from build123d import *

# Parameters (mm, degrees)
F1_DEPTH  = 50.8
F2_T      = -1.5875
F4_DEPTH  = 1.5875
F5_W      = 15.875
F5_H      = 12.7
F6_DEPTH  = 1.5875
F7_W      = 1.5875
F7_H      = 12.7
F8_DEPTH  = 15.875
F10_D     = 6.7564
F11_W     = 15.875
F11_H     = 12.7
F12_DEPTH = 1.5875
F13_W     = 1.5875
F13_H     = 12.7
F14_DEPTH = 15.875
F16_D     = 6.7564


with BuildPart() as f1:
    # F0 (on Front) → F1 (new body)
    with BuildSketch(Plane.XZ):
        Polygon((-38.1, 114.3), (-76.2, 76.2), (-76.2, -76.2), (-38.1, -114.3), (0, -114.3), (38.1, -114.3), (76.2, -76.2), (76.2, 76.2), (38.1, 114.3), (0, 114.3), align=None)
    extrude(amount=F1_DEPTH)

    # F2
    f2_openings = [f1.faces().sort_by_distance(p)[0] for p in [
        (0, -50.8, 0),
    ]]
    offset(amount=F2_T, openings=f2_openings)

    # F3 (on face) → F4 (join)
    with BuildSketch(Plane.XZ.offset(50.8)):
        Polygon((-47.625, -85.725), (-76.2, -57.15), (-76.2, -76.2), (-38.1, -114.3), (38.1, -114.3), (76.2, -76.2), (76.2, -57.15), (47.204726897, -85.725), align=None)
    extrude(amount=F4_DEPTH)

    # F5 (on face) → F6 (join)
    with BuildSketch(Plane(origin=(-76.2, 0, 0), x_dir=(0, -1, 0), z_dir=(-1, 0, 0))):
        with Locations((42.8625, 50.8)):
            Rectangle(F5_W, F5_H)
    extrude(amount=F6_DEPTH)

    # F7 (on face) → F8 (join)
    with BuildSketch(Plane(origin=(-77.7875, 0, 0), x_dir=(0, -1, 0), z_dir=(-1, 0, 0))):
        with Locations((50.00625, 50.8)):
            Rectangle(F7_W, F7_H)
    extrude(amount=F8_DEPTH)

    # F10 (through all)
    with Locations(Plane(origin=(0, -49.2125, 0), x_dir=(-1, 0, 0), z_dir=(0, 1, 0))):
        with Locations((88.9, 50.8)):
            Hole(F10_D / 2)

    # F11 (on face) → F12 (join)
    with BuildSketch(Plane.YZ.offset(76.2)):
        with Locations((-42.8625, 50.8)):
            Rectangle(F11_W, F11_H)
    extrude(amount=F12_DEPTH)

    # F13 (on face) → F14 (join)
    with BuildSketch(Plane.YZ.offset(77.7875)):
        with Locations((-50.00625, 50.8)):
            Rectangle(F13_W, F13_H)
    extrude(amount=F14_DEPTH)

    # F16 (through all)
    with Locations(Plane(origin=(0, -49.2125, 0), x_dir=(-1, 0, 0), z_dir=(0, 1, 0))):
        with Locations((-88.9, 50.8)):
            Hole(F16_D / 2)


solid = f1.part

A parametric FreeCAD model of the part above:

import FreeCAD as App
import Part
import Sketcher
from FreeCAD import Vector
Q = App.Units.Quantity


def faces_at(feature, points):
    """Names of the faces that lie closest to the given points."""
    faces = feature.Shape.Faces
    near = lambda p: min(range(len(faces)), key=lambda i: faces[i].distToShape(Part.Vertex(*p))[0])
    return sorted({f"Face{near(p) + 1}" for p in points})


def add_polygon(sketch, points):
    """Adds a closed chain of lines whose ends are joined by coincident constraints."""
    first, n = sketch.GeometryCount, len(points)
    for a, b in zip(points, points[1:] + points[:1]):
        sketch.addGeometry(Part.LineSegment(App.Vector(*a, 0), App.Vector(*b, 0)), False)
    for i in range(n):
        sketch.addConstraint(Sketcher.Constraint("Coincident", first + i, 2, first + (i + 1) % n, 1))

doc = App.newDocument("Part")
params = doc.addObject("Spreadsheet::Sheet", "Params")
for row, (alias, value) in enumerate([
    ("sketch1_width", "3 in"),
    ("sketch1_height", "6 in"),
    ("pad1_length", "2 in"),
    ("thickness_wall", "0.0625 in"),
    ("sketch2_width", "3 in"),
    ("sketch2_height", "0.75 in"),
    ("pad2_length", "0.0625 in"),
    ("sketch3_height", "0.5 in"),
    ("sketch3_width", "0.625 in"),
    ("pad3_length", "0.0625 in"),
    ("sketch4_height", "0.5 in"),
    ("sketch4_width", "0.0625 in"),
    ("pad4_length", "0.625 in"),
    ("sketch5_diameter", "0.266 in"),
    ("hole_diameter", "0.266 in"),
    ("sketch6_height", "0.5 in"),
    ("sketch6_width", "0.625 in"),
    ("pad5_length", "0.0625 in"),
    ("sketch7_height", "0.5 in"),
    ("sketch7_width", "0.0625 in"),
    ("pad6_length", "0.625 in"),
    ("sketch8_diameter", "0.266 in"),
    ("hole2_diameter", "0.266 in"),
], start=1):
    params.set(f"A{row}", alias)
    params.set(f"B{row}", "=" + value)
    params.setAlias(f"B{row}", alias)

body = doc.addObject("PartDesign::Body", "Body")

# Sketch on XZ plane
sketch1 = body.newObject("Sketcher::SketchObject", "Sketch")
sketch1.AttachmentSupport = (doc.getObject("XZ_Plane"), [""])
sketch1.MapMode = "FlatFace"
add_polygon(sketch1, [(-38, 114), (-76, 76), (-76, -76), (-38, -114), (38, -114), (76, -76), (76, 76), (38, 114)])  # lines 0-7
sketch1.addConstraint([
    Sketcher.Constraint("Vertical", 1),
    Sketcher.Constraint("Horizontal", 3),
    Sketcher.Constraint("Vertical", 5),
    Sketcher.Constraint("Horizontal", 7),
    Sketcher.Constraint("Symmetric", 0, 2, 4, 2, -1, 1),
    Sketcher.Constraint("Symmetric", 2, 2, 6, 2, -1, 1),
    Sketcher.Constraint("Perpendicular", 0, 2),
    Sketcher.Constraint("Perpendicular", 2, 4),
    Sketcher.Constraint("Perpendicular", 4, 6),
    Sketcher.Constraint("Horizontal", 1, 2, 4, 2),
    Sketcher.Constraint("Vertical", 3, 2, 6, 2),
    Sketcher.Constraint("DistanceX", 3, 1, 3, 2, Q("3 in")),
    Sketcher.Constraint("DistanceY", 1, 2, 1, 1, Q("6 in")),
    Sketcher.Constraint("DistanceX", 0, 2, -1, 1, Q("3 in")),
])
sketch1.setExpression("Constraints[19]", "Params.sketch1_width")
sketch1.setExpression("Constraints[20]", "Params.sketch1_height")
pad1 = body.newObject("PartDesign::Pad", "Pad")
pad1.Profile = sketch1
pad1.setExpression("Length", "Params.pad1_length")
doc.recompute()

thickness = body.newObject("PartDesign::Thickness", "Thickness")
thickness.Base = (pad1, faces_at(pad1, [(0, -50.8, 0)]))
thickness.setExpression("Value", "Params.thickness_wall")
thickness.Reversed = True
thickness.Join = "Arc"

# Sketch on XZ plane
sketch2 = body.newObject("Sketcher::SketchObject", "Sketch001")
sketch2.AttachmentSupport = (doc.getObject("XZ_Plane"), [""])
sketch2.MapMode = "FlatFace"
sketch2.AttachmentOffset = App.Placement(Vector(0, 0, 2 * 25.4), App.Rotation())
add_polygon(sketch2, [(-48, -86), (-76, -57), (-76, -76), (-38, -114), (38, -114), (76, -76), (76, -57), (47, -86)])  # lines 0-7
sketch2.addConstraint([
    Sketcher.Constraint("Vertical", 1),
    Sketcher.Constraint("Horizontal", 3),
    Sketcher.Constraint("Vertical", 5),
    Sketcher.Constraint("Horizontal", 7),
    Sketcher.Constraint("Symmetric", 1, 2, 4, 2, -2),
    Sketcher.Constraint("Parallel", 0, 2),
    Sketcher.Constraint("Perpendicular", 2, 4),
    Sketcher.Constraint("Horizontal", 0, 2, 5, 2),
    Sketcher.Constraint("Equal", 2, 4),
    Sketcher.Constraint("DistanceX", 3, 1, 3, 2, Q("3 in")),
    Sketcher.Constraint("DistanceX", 0, 2, -1, 1, Q("3 in")),
    Sketcher.Constraint("DistanceY", 1, 2, -1, 1, Q("3 in")),
    Sketcher.Constraint("DistanceY", 1, 2, 1, 1, Q("0.75 in")),
    Sketcher.Constraint("DistanceY", 6, 2, -1, 1, Q("3.375 in")),
    Sketcher.Constraint("DistanceX", 7, 2, 7, 1, 94.829727),
])
sketch2.setExpression("Constraints[17]", "Params.sketch2_width")
sketch2.setExpression("Constraints[20]", "Params.sketch2_height")
pad2 = body.newObject("PartDesign::Pad", "Pad001")
pad2.Profile = sketch2
pad2.setExpression("Length", "Params.pad2_length")

# Sketch on YZ plane
sketch3 = body.newObject("Sketcher::SketchObject", "Sketch002")
sketch3.AttachmentSupport = (doc.getObject("YZ_Plane"), [""])
sketch3.MapMode = "FlatFace"
sketch3.AttachmentOffset = App.Placement(Vector(0, 0, -3 * 25.4), App.Rotation())
add_polygon(sketch3, [(-35, 57), (-35, 44), (-51, 44), (-51, 57)])  # lines 0-3
sketch3.addConstraint([
    Sketcher.Constraint("Vertical", 0),
    Sketcher.Constraint("Horizontal", 1),
    Sketcher.Constraint("Vertical", 2),
    Sketcher.Constraint("Horizontal", 3),
    Sketcher.Constraint("DistanceY", 0, 2, 0, 1, Q("0.5 in")),
    Sketcher.Constraint("DistanceX", 1, 2, -1, 1, Q("2 in")),
    Sketcher.Constraint("DistanceX", 1, 2, 1, 1, Q("0.625 in")),
    Sketcher.Constraint("DistanceY", -1, 1, 0, 2, Q("1.75 in")),
])
sketch3.setExpression("Constraints[8]", "Params.sketch3_height")
sketch3.setExpression("Constraints[10]", "Params.sketch3_width")
pad3 = body.newObject("PartDesign::Pad", "Pad002")
pad3.Profile = sketch3
pad3.setExpression("Length", "Params.pad3_length")
pad3.Reversed = True

# Sketch on YZ plane
sketch4 = body.newObject("Sketcher::SketchObject", "Sketch003")
sketch4.AttachmentSupport = (doc.getObject("YZ_Plane"), [""])
sketch4.MapMode = "FlatFace"
sketch4.AttachmentOffset = App.Placement(Vector(0, 0, -3.0625 * 25.4), App.Rotation())
add_polygon(sketch4, [(-49.2, 57.1), (-49.2, 44.5), (-50.8, 44.5), (-50.8, 57.1)])  # lines 0-3
sketch4.addConstraint([
    Sketcher.Constraint("Vertical", 0),
    Sketcher.Constraint("Horizontal", 1),
    Sketcher.Constraint("Vertical", 2),
    Sketcher.Constraint("Horizontal", 3),
    Sketcher.Constraint("DistanceY", 0, 2, 0, 1, Q("0.5 in")),
    Sketcher.Constraint("DistanceX", 1, 2, -1, 1, Q("2 in")),
    Sketcher.Constraint("DistanceX", 1, 2, 1, 1, Q("0.0625 in")),
    Sketcher.Constraint("DistanceY", -1, 1, 0, 2, Q("1.75 in")),
])
sketch4.setExpression("Constraints[8]", "Params.sketch4_height")
sketch4.setExpression("Constraints[10]", "Params.sketch4_width")
pad4 = body.newObject("PartDesign::Pad", "Pad003")
pad4.Profile = sketch4
pad4.setExpression("Length", "Params.pad4_length")
pad4.Reversed = True

# Sketch on XZ plane
sketch5 = body.newObject("Sketcher::SketchObject", "Sketch004")
sketch5.AttachmentSupport = (doc.getObject("XZ_Plane"), [""])
sketch5.MapMode = "FlatFace"
sketch5.AttachmentOffset = App.Placement(Vector(0, 0, 1.9375 * 25.4), App.Rotation())
sketch5.addGeometry(Part.Circle(Vector(-88.9, 50.8, 0), Vector(0, 0, 1), 3.4), False)
sketch5.addConstraint([
    Sketcher.Constraint("Diameter", 0, Q("0.266 in")),
    Sketcher.Constraint("DistanceY", -1, 1, 0, 3, Q("2 in")),
    Sketcher.Constraint("DistanceX", 0, 3, -1, 1, Q("3.5 in")),
])
sketch5.setExpression("Constraints[0]", "Params.sketch5_diameter")
doc.recompute()
hole = body.newObject("PartDesign::Hole", "Hole")
hole.Profile = sketch5
hole.ThreadType = "None"
hole.setExpression("Diameter", "Params.hole_diameter")
hole.DepthType = "ThroughAll"
hole.Reversed = True

# Sketch on YZ plane
sketch6 = body.newObject("Sketcher::SketchObject", "Sketch005")
sketch6.AttachmentSupport = (doc.getObject("YZ_Plane"), [""])
sketch6.MapMode = "FlatFace"
sketch6.AttachmentOffset = App.Placement(Vector(0, 0, 3 * 25.4), App.Rotation())
add_polygon(sketch6, [(-51, 57), (-51, 44), (-35, 44), (-35, 57)])  # lines 0-3
sketch6.addConstraint([
    Sketcher.Constraint("Vertical", 0),
    Sketcher.Constraint("Horizontal", 1),
    Sketcher.Constraint("Vertical", 2),
    Sketcher.Constraint("Horizontal", 3),
    Sketcher.Constraint("DistanceY", 0, 2, 0, 1, Q("0.5 in")),
    Sketcher.Constraint("DistanceX", 0, 2, -1, 1, Q("2 in")),
    Sketcher.Constraint("DistanceX", 1, 1, 1, 2, Q("0.625 in")),
    Sketcher.Constraint("DistanceY", -1, 1, 0, 2, Q("1.75 in")),
])
sketch6.setExpression("Constraints[8]", "Params.sketch6_height")
sketch6.setExpression("Constraints[10]", "Params.sketch6_width")
pad5 = body.newObject("PartDesign::Pad", "Pad004")
pad5.Profile = sketch6
pad5.setExpression("Length", "Params.pad5_length")

# Sketch on YZ plane
sketch7 = body.newObject("Sketcher::SketchObject", "Sketch006")
sketch7.AttachmentSupport = (doc.getObject("YZ_Plane"), [""])
sketch7.MapMode = "FlatFace"
sketch7.AttachmentOffset = App.Placement(Vector(0, 0, 3.0625 * 25.4), App.Rotation())
add_polygon(sketch7, [(-50.8, 57.1), (-50.8, 44.5), (-49.2, 44.5), (-49.2, 57.1)])  # lines 0-3
sketch7.addConstraint([
    Sketcher.Constraint("Vertical", 0),
    Sketcher.Constraint("Horizontal", 1),
    Sketcher.Constraint("Vertical", 2),
    Sketcher.Constraint("Horizontal", 3),
    Sketcher.Constraint("DistanceY", 0, 2, 0, 1, Q("0.5 in")),
    Sketcher.Constraint("DistanceX", 0, 2, -1, 1, Q("2 in")),
    Sketcher.Constraint("DistanceX", 1, 1, 1, 2, Q("0.0625 in")),
    Sketcher.Constraint("DistanceY", -1, 1, 0, 2, Q("1.75 in")),
])
sketch7.setExpression("Constraints[8]", "Params.sketch7_height")
sketch7.setExpression("Constraints[10]", "Params.sketch7_width")
pad6 = body.newObject("PartDesign::Pad", "Pad005")
pad6.Profile = sketch7
pad6.setExpression("Length", "Params.pad6_length")

# Sketch on XZ plane
sketch8 = body.newObject("Sketcher::SketchObject", "Sketch007")
sketch8.AttachmentSupport = (doc.getObject("XZ_Plane"), [""])
sketch8.MapMode = "FlatFace"
sketch8.AttachmentOffset = App.Placement(Vector(0, 0, 1.9375 * 25.4), App.Rotation())
sketch8.addGeometry(Part.Circle(Vector(88.9, 50.8, 0), Vector(0, 0, 1), 3.4), False)
sketch8.addConstraint([
    Sketcher.Constraint("Diameter", 0, Q("0.266 in")),
    Sketcher.Constraint("DistanceY", -1, 1, 0, 3, Q("2 in")),
    Sketcher.Constraint("DistanceX", -1, 1, 0, 3, Q("3.5 in")),
])
sketch8.setExpression("Constraints[0]", "Params.sketch8_diameter")
doc.recompute()
hole2 = body.newObject("PartDesign::Hole", "Hole001")
hole2.Profile = sketch8
hole2.ThreadType = "None"
hole2.setExpression("Diameter", "Params.hole2_diameter")
hole2.DepthType = "ThroughAll"
hole2.Reversed = True

doc.recompute()
